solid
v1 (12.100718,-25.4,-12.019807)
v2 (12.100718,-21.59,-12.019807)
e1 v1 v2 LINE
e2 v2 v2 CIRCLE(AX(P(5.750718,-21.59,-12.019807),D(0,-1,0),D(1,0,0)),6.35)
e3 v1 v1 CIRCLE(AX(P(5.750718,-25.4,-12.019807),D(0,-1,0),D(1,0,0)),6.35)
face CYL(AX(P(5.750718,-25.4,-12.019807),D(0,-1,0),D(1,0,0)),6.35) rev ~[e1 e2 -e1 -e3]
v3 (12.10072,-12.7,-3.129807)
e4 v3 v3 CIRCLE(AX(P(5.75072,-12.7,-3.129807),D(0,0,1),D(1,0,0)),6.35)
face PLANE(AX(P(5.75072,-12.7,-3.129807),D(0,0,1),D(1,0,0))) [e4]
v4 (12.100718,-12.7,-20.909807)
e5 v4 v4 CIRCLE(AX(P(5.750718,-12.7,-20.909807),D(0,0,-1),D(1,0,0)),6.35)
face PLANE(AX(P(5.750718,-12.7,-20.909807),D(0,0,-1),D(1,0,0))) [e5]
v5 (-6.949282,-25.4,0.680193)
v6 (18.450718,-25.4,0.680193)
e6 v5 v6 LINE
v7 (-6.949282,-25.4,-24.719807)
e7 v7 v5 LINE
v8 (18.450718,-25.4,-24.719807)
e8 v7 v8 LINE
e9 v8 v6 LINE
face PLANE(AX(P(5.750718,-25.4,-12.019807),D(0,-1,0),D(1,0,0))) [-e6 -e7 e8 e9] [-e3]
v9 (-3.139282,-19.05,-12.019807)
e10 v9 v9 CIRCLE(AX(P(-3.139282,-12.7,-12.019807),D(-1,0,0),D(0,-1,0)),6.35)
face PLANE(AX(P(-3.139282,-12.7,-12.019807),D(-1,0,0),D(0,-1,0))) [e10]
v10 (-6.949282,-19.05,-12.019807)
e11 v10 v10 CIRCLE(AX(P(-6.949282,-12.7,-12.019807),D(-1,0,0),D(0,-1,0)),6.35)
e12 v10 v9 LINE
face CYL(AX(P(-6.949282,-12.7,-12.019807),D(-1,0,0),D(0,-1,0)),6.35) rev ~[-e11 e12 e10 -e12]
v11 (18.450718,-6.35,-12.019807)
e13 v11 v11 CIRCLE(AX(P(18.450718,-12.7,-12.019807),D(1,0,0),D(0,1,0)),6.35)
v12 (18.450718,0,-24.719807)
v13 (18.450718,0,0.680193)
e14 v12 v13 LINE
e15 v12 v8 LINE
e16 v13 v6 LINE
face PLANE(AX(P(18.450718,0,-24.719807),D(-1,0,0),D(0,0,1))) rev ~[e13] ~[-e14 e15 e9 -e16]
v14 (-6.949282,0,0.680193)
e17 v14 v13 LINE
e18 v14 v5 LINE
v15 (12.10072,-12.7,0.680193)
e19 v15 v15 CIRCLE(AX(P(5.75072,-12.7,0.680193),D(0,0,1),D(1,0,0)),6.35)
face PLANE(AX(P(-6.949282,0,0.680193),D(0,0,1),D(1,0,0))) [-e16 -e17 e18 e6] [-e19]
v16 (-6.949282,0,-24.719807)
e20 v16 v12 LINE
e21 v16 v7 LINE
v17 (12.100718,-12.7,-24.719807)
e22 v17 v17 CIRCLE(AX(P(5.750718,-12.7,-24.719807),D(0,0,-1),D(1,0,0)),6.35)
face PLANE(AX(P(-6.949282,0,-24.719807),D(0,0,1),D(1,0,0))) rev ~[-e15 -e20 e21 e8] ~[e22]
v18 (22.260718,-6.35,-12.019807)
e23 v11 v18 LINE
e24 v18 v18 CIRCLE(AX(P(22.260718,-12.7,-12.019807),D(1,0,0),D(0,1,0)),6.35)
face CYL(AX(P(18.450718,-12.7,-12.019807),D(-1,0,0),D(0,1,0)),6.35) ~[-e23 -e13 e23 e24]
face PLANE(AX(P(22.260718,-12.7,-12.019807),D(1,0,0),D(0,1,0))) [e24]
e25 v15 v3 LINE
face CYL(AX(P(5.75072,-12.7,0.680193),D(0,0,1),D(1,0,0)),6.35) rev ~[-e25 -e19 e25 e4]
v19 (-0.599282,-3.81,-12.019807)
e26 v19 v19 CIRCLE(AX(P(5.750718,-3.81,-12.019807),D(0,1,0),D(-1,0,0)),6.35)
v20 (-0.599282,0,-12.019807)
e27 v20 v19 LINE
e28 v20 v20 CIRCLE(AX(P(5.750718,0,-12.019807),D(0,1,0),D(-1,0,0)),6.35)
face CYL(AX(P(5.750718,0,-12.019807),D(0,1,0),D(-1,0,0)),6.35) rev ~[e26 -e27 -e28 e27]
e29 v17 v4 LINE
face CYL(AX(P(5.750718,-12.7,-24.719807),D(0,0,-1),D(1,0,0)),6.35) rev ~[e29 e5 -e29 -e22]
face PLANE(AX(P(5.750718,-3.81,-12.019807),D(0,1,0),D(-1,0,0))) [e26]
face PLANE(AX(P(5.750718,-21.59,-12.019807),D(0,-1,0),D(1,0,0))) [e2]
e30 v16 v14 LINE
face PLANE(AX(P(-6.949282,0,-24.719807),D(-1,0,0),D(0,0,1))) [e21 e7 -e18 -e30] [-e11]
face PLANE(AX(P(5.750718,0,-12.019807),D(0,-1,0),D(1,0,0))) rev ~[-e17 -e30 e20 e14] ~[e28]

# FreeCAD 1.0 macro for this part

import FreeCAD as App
import Part
import Sketcher

V = App.Vector
Q = App.Units.Quantity


def add_polygon(sketch, points):
    """Adds a closed chain of lines whose ends are joined by coincident constraints."""
    first, n = sketch.GeometryCount, len(points)
    for a, b in zip(points, points[1:] + points[:1]):
        sketch.addGeometry(Part.LineSegment(App.Vector(*a, 0), App.Vector(*b, 0)), False)
    for i in range(n):
        sketch.addConstraint(Sketcher.Constraint("Coincident", first + i, 2, first + (i + 1) % n, 1))

doc = App.newDocument("Part")
params = doc.addObject("Spreadsheet::Sheet", "Params")
for row, (alias, value) in enumerate([
    ("sketch1_width", "1 in"),
    ("pad1_length", "1 in"),
    ("sketch2_diameter", "0.5 in"),
    ("pocket1_length", "0.15 in"),
    ("sketch3_diameter", "0.5 in"),
    ("pocket2_length", "0.15 in"),
    ("sketch4_diameter", "0.5 in"),
    ("pocket3_length", "0.15 in"),
    ("sketch5_diameter", "0.5 in"),
    ("pad2_length", "0.15 in"),
    ("sketch6_diameter", "0.5 in"),
    ("pocket4_length", "0.15 in"),
    ("sketch7_diameter", "0.5 in"),
    ("pocket5_length", "0.15 in"),
], start=1):
    params.set(f"A{row}", alias)
    params.set(f"B{row}", "=" + value)
    params.setAlias(f"B{row}", alias)

body = doc.addObject("PartDesign::Body", "Body")

# Sketch on XZ plane
sketch1 = doc.addObject("Sketcher::SketchObject", "Sketch")
body.addObject(sketch1)
sketch1.AttachmentSupport = (doc.XZ_Plane, [""])
sketch1.MapMode = "FlatFace"
add_polygon(sketch1, [(-7, 1), (-7, -25), (18, -25), (18, 1)])  # lines 0-3
sketch1.addConstraint(Sketcher.Constraint("Vertical", 0))
sketch1.addConstraint(Sketcher.Constraint("Horizontal", 1))
sketch1.addConstraint(Sketcher.Constraint("Vertical", 2))
sketch1.addConstraint(Sketcher.Constraint("Horizontal", 3))
sketch1.addConstraint(Sketcher.Constraint("Equal", 3, 0))
sketch1.addConstraint(Sketcher.Constraint("DistanceX", 1, 1, 1, 2, Q("1 in")))
sketch1.addConstraint(Sketcher.Constraint("DistanceX", 0, 2, -1, 1, Q("6.949282 mm")))
sketch1.addConstraint(Sketcher.Constraint("DistanceY", 0, 2, -1, 1, Q("24.719807 mm")))
sketch1.setExpression("Constraints[9]", "Params.sketch1_width")
pad1 = doc.addObject("PartDesign::Pad", "Pad")
body.addObject(pad1)
pad1.Profile = sketch1
pad1.setExpression("Length", "Params.pad1_length")

# Sketch on XZ plane
sketch2 = doc.addObject("Sketcher::SketchObject", "Sketch001")
body.addObject(sketch2)
sketch2.AttachmentSupport = (doc.XZ_Plane, [""])
sketch2.MapMode = "FlatFace"
sketch2.addGeometry(Part.Circle(V(6, -12, 0), V(0, 0, 1), 6), False)
sketch2.addConstraint(Sketcher.Constraint("Diameter", 0, Q("0.5 in")))
sketch2.addConstraint(Sketcher.Constraint("DistanceX", -1, 1, 0, 3, Q("5.750718 mm")))
sketch2.addConstraint(Sketcher.Constraint("DistanceY", 0, 3, -1, 1, Q("12.019807 mm")))
sketch2.setExpression("Constraints[0]", "Params.sketch2_diameter")
pocket1 = doc.addObject("PartDesign::Pocket", "Pocket")
body.addObject(pocket1)
pocket1.Profile = sketch2
pocket1.setExpression("Length", "Params.pocket1_length")
pocket1.Reversed = True

# Sketch on YZ plane
sketch3 = doc.addObject("Sketcher::SketchObject", "Sketch002")
body.addObject(sketch3)
sketch3.AttachmentSupport = (doc.YZ_Plane, [""])
sketch3.MapMode = "FlatFace"
sketch3.AttachmentOffset = App.Placement(V(0, 0, -6.949282), App.Rotation())
sketch3.addGeometry(Part.Circle(V(-13, -12, 0), V(0, 0, 1), 6), False)
sketch3.addConstraint(Sketcher.Constraint("Diameter", 0, Q("0.5 in")))
sketch3.addConstraint(Sketcher.Constraint("DistanceX", 0, 3, -1, 1, Q("0.5 in")))
sketch3.addConstraint(Sketcher.Constraint("DistanceY", 0, 3, -1, 1, Q("12.019807 mm")))
sketch3.setExpression("Constraints[0]", "Params.sketch3_diameter")
pocket2 = doc.addObject("PartDesign::Pocket", "Pocket001")
body.addObject(pocket2)
pocket2.Profile = sketch3
pocket2.setExpression("Length", "Params.pocket2_length")
pocket2.Reversed = True

# Sketch on XY plane
sketch4 = doc.addObject("Sketcher::SketchObject", "Sketch003")
body.addObject(sketch4)
sketch4.AttachmentSupport = (doc.XY_Plane, [""])
sketch4.MapMode = "FlatFace"
sketch4.AttachmentOffset = App.Placement(V(0, 0, 0.680193), App.Rotation())
sketch4.addGeometry(Part.Circle(V(6, -13, 0), V(0, 0, 1), 6), False)
sketch4.addConstraint(Sketcher.Constraint("Diameter", 0, Q("0.5 in")))
sketch4.addConstraint(Sketcher.Constraint("DistanceY", 0, 3, -1, 1, Q("0.5 in")))
sketch4.addConstraint(Sketcher.Constraint("DistanceX", -1, 1, 0, 3, Q("5.75072 mm")))
sketch4.setExpression("Constraints[0]", "Params.sketch4_diameter")
pocket3 = doc.addObject("PartDesign::Pocket", "Pocket002")
body.addObject(pocket3)
pocket3.Profile = sketch4
pocket3.setExpression("Length", "Params.pocket3_length")

# Sketch on YZ plane
sketch5 = doc.addObject("Sketcher::SketchObject", "Sketch004")
body.addObject(sketch5)
sketch5.AttachmentSupport = (doc.YZ_Plane, [""])
sketch5.MapMode = "FlatFace"
sketch5.AttachmentOffset = App.Placement(V(0, 0, 18.450718), App.Rotation())
sketch5.addGeometry(Part.Circle(V(-13, -12, 0), V(0, 0, 1), 6), False)
sketch5.addConstraint(Sketcher.Constraint("Diameter", 0, Q("0.5 in")))
sketch5.addConstraint(Sketcher.Constraint("DistanceX", 0, 3, -1, 1, Q("0.5 in")))
sketch5.addConstraint(Sketcher.Constraint("DistanceY", 0, 3, -1, 1, Q("12.019807 mm")))
sketch5.setExpression("Constraints[0]", "Params.sketch5_diameter")
pad2 = doc.addObject("PartDesign::Pad", "Pad001")
body.addObject(pad2)
pad2.Profile = sketch5
pad2.setExpression("Length", "Params.pad2_length")

# Sketch on XY plane
sketch6 = doc.addObject("Sketcher::SketchObject", "Sketch005")
body.addObject(sketch6)
sketch6.AttachmentSupport = (doc.XY_Plane, [""])
sketch6.MapMode = "FlatFace"
sketch6.AttachmentOffset = App.Placement(V(0, 0, -24.719807), App.Rotation())
sketch6.addGeometry(Part.Circle(V(6, -13, 0), V(0, 0, 1), 6), False)
sketch6.addConstraint(Sketcher.Constraint("Diameter", 0, Q("0.5 in")))
sketch6.addConstraint(Sketcher.Constraint("DistanceY", 0, 3, -1, 1, Q("0.5 in")))
sketch6.addConstraint(Sketcher.Constraint("DistanceX", -1, 1, 0, 3, Q("5.750718 mm")))
sketch6.setExpression("Constraints[0]", "Params.sketch6_diameter")
pocket4 = doc.addObject("PartDesign::Pocket", "Pocket003")
body.addObject(pocket4)
pocket4.Profile = sketch6
pocket4.setExpression("Length", "Params.pocket4_length")
pocket4.Reversed = True

# Sketch on XZ plane
sketch7 = doc.addObject("Sketcher::SketchObject", "Sketch006")
body.addObject(sketch7)
sketch7.AttachmentSupport = (doc.XZ_Plane, [""])
sketch7.MapMode = "FlatFace"
sketch7.AttachmentOffset = App.Placement(V(0, 0, 1 * 25.4), App.Rotation())
sketch7.addGeometry(Part.Circle(V(6, -12, 0), V(0, 0, 1), 6), False)
sketch7.addConstraint(Sketcher.Constraint("Diameter", 0, Q("0.5 in")))
sketch7.addConstraint(Sketcher.Constraint("DistanceX", -1, 1, 0, 3, Q("5.750718 mm")))
sketch7.addConstraint(Sketcher.Constraint("DistanceY", 0, 3, -1, 1, Q("12.019807 mm")))
sketch7.setExpression("Constraints[0]", "Params.sketch7_diameter")
pocket5 = doc.addObject("PartDesign::Pocket", "Pocket004")
body.addObject(pocket5)
pocket5.Profile = sketch7
pocket5.setExpression("Length", "Params.pocket5_length")

doc.recompute()
